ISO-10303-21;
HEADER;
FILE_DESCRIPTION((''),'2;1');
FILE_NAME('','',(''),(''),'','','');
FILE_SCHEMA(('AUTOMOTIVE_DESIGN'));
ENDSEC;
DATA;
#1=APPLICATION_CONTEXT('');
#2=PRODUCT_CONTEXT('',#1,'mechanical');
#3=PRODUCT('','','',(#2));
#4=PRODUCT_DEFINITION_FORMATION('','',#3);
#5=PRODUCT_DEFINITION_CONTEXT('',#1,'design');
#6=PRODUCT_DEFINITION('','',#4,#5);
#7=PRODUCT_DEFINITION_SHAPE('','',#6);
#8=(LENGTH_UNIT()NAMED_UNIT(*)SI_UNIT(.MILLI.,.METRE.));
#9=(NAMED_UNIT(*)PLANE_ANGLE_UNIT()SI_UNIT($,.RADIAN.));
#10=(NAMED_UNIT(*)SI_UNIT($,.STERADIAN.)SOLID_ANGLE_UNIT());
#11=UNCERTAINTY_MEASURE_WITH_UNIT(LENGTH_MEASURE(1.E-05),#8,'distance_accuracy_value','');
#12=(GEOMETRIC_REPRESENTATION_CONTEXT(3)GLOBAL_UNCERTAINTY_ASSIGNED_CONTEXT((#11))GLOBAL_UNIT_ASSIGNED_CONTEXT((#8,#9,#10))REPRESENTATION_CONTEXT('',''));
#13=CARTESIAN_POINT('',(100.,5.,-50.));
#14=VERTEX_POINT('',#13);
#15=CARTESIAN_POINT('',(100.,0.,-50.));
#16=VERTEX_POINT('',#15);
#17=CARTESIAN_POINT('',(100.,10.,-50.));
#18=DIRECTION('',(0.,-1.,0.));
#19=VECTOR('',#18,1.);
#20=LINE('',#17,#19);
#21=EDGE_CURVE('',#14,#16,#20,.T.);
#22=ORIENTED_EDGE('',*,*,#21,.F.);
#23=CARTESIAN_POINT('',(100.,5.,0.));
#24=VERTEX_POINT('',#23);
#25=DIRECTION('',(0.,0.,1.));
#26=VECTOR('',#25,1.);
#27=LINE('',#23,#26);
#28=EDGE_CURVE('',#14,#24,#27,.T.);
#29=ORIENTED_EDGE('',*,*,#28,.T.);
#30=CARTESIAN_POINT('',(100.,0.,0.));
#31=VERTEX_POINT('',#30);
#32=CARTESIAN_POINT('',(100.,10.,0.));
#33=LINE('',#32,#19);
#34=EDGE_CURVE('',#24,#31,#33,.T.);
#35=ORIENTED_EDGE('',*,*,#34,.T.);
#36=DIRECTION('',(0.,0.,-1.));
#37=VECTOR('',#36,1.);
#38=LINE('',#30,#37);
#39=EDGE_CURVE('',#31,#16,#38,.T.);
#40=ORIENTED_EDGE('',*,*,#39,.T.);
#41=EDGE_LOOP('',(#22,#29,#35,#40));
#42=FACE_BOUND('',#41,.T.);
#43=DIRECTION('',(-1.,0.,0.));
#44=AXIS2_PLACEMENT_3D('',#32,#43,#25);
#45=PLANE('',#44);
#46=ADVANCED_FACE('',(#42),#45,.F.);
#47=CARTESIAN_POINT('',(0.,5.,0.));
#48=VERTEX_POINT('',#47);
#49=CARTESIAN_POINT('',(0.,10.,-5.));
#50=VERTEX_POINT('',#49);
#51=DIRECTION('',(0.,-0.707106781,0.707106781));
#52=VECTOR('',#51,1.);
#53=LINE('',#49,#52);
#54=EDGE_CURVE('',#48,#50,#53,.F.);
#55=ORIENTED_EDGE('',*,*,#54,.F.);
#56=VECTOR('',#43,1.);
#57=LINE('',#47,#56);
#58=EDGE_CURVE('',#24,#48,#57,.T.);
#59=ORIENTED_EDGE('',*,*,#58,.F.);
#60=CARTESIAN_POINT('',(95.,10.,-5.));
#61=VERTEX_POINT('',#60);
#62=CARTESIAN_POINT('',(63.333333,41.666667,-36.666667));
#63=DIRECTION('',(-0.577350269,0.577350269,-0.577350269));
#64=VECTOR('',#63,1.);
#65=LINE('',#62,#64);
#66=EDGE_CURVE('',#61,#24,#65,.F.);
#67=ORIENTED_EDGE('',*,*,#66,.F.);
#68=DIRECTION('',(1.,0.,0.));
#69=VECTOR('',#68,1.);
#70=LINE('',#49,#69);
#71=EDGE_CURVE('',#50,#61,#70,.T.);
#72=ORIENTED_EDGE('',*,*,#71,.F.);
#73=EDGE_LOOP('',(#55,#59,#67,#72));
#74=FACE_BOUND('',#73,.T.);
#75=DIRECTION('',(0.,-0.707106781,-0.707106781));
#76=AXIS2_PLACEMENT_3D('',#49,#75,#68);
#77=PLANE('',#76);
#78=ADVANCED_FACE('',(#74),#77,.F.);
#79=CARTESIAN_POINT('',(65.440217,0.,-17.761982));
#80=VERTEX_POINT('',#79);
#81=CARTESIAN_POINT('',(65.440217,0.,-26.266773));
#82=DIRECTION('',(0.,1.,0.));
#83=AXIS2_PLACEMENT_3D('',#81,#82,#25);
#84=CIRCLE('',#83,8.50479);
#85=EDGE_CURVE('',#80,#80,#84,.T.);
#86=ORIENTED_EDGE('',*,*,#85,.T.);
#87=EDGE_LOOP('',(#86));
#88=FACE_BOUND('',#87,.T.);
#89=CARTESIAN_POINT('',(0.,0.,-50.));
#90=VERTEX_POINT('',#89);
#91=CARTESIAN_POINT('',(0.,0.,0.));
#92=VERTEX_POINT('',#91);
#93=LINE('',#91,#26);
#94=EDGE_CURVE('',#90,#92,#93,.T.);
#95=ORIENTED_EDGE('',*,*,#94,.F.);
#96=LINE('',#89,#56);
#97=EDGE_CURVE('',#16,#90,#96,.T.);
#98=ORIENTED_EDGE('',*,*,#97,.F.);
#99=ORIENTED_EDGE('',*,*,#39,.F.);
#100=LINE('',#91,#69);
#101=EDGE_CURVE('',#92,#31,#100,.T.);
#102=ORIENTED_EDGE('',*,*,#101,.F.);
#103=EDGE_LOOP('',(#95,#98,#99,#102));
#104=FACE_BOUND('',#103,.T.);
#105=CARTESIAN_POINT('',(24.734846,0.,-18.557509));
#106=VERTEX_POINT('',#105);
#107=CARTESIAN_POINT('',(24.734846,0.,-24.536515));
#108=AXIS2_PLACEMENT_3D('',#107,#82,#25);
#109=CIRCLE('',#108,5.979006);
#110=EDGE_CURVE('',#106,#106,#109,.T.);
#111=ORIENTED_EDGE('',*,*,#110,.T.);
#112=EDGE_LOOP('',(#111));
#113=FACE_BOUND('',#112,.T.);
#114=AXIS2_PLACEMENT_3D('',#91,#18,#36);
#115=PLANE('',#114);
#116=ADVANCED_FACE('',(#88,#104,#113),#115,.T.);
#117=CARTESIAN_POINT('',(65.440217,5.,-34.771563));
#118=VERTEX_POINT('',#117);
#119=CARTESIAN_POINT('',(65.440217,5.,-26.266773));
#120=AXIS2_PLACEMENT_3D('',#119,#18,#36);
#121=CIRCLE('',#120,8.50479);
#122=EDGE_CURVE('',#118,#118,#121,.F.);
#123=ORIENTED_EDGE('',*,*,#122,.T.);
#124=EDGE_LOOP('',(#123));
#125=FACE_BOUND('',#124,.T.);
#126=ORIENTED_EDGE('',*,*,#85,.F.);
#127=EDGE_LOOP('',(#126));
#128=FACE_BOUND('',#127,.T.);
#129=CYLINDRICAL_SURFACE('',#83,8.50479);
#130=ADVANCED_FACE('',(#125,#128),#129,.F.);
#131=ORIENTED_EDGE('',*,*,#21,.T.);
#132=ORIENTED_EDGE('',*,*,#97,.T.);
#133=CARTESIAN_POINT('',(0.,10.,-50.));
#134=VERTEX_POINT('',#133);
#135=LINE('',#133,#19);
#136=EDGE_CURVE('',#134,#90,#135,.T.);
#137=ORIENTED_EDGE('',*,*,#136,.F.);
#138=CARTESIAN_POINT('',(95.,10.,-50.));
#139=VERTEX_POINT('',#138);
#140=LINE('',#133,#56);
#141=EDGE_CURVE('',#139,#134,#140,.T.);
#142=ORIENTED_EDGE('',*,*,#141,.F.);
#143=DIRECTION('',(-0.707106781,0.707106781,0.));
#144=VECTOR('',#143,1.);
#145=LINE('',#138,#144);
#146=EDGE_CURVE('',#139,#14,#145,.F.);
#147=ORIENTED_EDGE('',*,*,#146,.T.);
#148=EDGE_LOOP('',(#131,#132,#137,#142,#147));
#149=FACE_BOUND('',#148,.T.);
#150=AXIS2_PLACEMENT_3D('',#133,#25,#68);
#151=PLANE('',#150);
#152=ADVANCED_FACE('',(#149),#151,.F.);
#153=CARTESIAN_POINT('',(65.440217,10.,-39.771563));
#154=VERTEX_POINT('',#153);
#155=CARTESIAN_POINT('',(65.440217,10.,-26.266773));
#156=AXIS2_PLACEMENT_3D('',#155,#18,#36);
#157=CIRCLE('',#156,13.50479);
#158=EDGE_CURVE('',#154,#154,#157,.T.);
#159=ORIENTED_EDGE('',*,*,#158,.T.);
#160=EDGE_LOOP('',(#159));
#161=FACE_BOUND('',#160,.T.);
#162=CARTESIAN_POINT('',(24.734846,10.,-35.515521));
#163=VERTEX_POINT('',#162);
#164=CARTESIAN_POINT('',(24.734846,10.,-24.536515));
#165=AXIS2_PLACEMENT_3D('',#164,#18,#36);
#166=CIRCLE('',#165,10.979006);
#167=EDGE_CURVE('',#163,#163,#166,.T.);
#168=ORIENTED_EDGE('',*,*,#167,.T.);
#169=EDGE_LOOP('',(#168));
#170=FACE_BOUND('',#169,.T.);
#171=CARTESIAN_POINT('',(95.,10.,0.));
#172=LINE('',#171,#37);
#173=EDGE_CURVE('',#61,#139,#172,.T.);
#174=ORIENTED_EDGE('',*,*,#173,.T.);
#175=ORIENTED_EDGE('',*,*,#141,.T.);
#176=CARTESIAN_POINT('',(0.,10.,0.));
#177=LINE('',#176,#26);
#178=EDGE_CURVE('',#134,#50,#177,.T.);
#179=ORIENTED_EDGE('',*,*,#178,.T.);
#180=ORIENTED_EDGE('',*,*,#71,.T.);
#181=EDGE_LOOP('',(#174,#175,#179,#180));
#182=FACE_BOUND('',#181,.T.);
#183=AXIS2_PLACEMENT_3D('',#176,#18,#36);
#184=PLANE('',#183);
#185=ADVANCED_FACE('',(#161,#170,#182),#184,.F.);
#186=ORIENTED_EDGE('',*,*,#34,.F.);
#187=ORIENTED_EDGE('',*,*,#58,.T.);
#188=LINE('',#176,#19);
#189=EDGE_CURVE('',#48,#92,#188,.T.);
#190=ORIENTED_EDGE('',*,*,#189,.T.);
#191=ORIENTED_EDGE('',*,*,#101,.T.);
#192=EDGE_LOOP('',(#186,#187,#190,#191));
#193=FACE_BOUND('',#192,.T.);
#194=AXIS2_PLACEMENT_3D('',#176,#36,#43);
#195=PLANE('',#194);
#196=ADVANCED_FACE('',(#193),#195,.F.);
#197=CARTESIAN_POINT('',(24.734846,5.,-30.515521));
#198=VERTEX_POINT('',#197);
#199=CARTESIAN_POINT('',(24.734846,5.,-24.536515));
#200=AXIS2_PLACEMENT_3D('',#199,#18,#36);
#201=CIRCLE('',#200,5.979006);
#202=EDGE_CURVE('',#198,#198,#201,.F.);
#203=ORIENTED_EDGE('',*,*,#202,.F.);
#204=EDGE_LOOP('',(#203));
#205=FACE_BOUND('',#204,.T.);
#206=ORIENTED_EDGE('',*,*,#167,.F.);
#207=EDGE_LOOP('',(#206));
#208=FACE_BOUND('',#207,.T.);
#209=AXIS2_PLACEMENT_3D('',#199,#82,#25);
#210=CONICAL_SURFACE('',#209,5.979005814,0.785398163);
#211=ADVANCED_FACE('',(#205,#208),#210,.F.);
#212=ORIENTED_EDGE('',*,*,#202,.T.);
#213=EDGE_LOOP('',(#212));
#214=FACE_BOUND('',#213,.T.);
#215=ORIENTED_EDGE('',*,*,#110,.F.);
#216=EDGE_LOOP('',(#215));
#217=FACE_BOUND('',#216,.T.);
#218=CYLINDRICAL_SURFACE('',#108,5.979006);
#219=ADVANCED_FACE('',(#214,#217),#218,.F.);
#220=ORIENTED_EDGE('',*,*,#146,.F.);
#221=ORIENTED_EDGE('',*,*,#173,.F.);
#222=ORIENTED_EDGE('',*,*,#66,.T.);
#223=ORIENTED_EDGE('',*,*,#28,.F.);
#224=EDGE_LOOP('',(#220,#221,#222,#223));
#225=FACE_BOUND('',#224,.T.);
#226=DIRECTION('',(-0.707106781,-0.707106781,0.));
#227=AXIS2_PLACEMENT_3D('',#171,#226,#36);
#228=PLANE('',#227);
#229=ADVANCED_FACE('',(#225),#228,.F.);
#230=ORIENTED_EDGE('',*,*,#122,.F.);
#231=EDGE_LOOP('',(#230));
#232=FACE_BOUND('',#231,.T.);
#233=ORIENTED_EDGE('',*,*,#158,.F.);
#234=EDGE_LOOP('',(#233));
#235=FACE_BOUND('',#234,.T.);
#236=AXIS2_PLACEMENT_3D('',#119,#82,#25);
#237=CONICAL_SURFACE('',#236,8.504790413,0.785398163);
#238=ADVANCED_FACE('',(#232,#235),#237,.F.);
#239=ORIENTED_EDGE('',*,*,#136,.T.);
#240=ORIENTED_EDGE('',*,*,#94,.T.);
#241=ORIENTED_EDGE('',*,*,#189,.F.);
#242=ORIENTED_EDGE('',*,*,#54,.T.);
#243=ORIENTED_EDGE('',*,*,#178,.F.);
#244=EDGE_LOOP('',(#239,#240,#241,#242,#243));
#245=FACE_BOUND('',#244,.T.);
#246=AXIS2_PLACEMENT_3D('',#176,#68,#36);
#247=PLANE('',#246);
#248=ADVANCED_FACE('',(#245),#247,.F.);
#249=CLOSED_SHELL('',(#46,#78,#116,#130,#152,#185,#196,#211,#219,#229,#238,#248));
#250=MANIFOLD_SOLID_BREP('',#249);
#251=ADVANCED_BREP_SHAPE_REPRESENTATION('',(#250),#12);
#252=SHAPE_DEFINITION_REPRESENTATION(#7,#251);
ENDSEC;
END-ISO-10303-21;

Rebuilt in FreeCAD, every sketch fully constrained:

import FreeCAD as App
import Part
import Sketcher
from FreeCAD import Vector
Q = App.Units.Quantity


def edges_at(feature, points):
    """Names of the edges that pass closest to the given points."""
    edges = feature.Shape.Edges
    near = lambda p: min(range(len(edges)), key=lambda i: edges[i].distToShape(Part.Vertex(*p))[0])
    return sorted({f"Edge{near(p) + 1}" for p in points})


def add_polygon(sketch, points):
    """Adds a closed chain of lines whose ends are joined by coincident constraints."""
    first, n = sketch.GeometryCount, len(points)
    for a, b in zip(points, points[1:] + points[:1]):
        sketch.addGeometry(Part.LineSegment(App.Vector(*a, 0), App.Vector(*b, 0)), False)
    for i in range(n):
        sketch.addConstraint(Sketcher.Constraint("Coincident", first + i, 2, first + (i + 1) % n, 1))

doc = App.newDocument("Part")
body = doc.addObject("PartDesign::Body", "Body")

# Sketch on XZ plane
sketch1 = body.newObject("Sketcher::SketchObject", "Sketch")
sketch1.AttachmentSupport = (doc.getObject("XZ_Plane"), [""])
sketch1.MapMode = "FlatFace"
add_polygon(sketch1, [(0, -50), (0, 0), (100, 0), (100, -50)])  # lines 0-3
sketch1.addConstraint(Sketcher.Constraint("Vertical", 0))
sketch1.addConstraint(Sketcher.Constraint("Horizontal", 1))
sketch1.addConstraint(Sketcher.Constraint("Vertical", 2))
sketch1.addConstraint(Sketcher.Constraint("Horizontal", 3))
sketch1.addConstraint(Sketcher.Constraint("Coincident", 0, 2, -1, 1))
sketch1.addConstraint(Sketcher.Constraint("DistanceX", 1, 1, 1, 2, Q("100 mm")))
sketch1.addConstraint(Sketcher.Constraint("DistanceY", 0, 1, 0, 2, Q("50 mm")))
pad1 = body.newObject("PartDesign::Pad", "Pad")
pad1.Profile = sketch1
pad1.Length = 10
pad1.Reversed = True

# Sketch on XZ plane
sketch2 = body.newObject("Sketcher::SketchObject", "Sketch001")
sketch2.AttachmentSupport = (doc.getObject("XZ_Plane"), [""])
sketch2.MapMode = "FlatFace"
sketch2.AttachmentOffset = App.Placement(Vector(0, 0, -10), App.Rotation())
sketch2.addGeometry(Part.Circle(Vector(25, -25, 0), Vector(0, 0, 1), 6), False)
sketch2.addConstraint(Sketcher.Constraint("Diameter", 0, Q("11.958012 mm")))
sketch2.addConstraint(Sketcher.Constraint("DistanceX", -1, 1, 0, 3, Q("24.734846 mm")))
sketch2.addConstraint(Sketcher.Constraint("DistanceY", 0, 3, -1, 1, Q("24.536515 mm")))
pocket1 = body.newObject("PartDesign::Pocket", "Pocket")
pocket1.Profile = sketch2
pocket1.Type = "ThroughAll"
pocket1.Reversed = True
doc.recompute()

chamfer = body.newObject("PartDesign::Chamfer", "Chamfer")
chamfer.Base = (pocket1, edges_at(pocket1, [(100, 10, -25), (24.735, 10, -30.516), (50, 10, 0)]))
chamfer.Size = 5

# Sketch on XZ plane
sketch3 = body.newObject("Sketcher::SketchObject", "Sketch002")
sketch3.AttachmentSupport = (doc.getObject("XZ_Plane"), [""])
sketch3.MapMode = "FlatFace"
sketch3.AttachmentOffset = App.Placement(Vector(0, 0, -10), App.Rotation())
sketch3.addGeometry(Part.Circle(Vector(65, -26, 0), Vector(0, 0, 1), 9), False)
sketch3.addConstraint(Sketcher.Constraint("Diameter", 0, Q("17.009581 mm")))
sketch3.addConstraint(Sketcher.Constraint("DistanceX", -1, 1, 0, 3, Q("65.440217 mm")))
sketch3.addConstraint(Sketcher.Constraint("DistanceY", 0, 3, -1, 1, Q("26.266773 mm")))
pocket2 = body.newObject("PartDesign::Pocket", "Pocket001")
pocket2.Profile = sketch3
pocket2.Type = "ThroughAll"
pocket2.Reversed = True
doc.recompute()

chamfer2 = body.newObject("PartDesign::Chamfer", "Chamfer001")
chamfer2.Base = (pocket2, edges_at(pocket2, [(65.44, 10, -34.772)]))
chamfer2.Size = 5

doc.recompute()
